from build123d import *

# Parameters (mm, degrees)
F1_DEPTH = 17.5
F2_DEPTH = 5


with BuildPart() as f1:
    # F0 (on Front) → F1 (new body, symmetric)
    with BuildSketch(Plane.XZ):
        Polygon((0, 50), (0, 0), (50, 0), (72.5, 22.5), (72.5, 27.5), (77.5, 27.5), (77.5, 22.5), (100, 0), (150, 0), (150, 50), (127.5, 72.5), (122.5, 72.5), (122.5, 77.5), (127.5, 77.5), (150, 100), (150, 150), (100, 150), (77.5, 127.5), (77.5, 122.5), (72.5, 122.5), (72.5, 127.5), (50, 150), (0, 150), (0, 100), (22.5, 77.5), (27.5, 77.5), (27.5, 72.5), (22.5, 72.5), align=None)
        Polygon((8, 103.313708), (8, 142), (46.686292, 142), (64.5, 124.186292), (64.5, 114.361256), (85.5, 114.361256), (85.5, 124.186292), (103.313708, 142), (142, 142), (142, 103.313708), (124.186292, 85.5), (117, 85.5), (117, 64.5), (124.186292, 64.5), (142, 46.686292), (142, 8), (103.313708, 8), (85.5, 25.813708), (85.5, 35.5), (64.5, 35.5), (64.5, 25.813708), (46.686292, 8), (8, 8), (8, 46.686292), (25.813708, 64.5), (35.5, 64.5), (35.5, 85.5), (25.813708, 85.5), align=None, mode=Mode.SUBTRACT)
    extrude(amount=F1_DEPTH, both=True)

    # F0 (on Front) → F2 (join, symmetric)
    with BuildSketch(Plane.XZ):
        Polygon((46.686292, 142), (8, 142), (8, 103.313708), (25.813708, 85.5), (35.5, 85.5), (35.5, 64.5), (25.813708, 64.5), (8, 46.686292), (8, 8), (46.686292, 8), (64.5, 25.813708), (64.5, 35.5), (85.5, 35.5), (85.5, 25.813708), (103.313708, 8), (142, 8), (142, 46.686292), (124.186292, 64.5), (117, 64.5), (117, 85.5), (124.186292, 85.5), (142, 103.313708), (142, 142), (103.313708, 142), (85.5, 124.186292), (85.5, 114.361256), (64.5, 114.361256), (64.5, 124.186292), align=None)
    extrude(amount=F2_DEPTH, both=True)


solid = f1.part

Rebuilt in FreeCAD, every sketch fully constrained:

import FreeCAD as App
import Part
import Sketcher

V = App.Vector

doc = App.newDocument("Part")
params = doc.addObject("Spreadsheet::Sheet", "Params")
for row, (alias, value) in enumerate([
    ("sketch1_width", "50 mm"),
    ("sketch1_width2", "5 mm"),
    ("sketch1_width3", "21 mm"),
    ("pad1_length", "35 mm"),
    ("sketch2_width", "21 mm"),
    ("pad2_length", "10 mm"),
], start=1):
    params.set(f"A{row}", alias)
    params.set(f"B{row}", "=" + value)
    params.setAlias(f"B{row}", alias)

body = doc.addObject("PartDesign::Body", "Body")

# Sketch on XZ plane
sketch1 = body.newObject("Sketcher::SketchObject", "Sketch")
sketch1.AttachmentSupport = (doc.getObject("XZ_Plane"), [""])
sketch1.MapMode = "FlatFace"
sketch1.addGeometry([
    Part.LineSegment(V(0, 50, 0), V(0, 0, 0)),  # 0
    Part.LineSegment(V(0, 0, 0), V(50, 0, 0)),  # 1
    Part.LineSegment(V(50, 0, 0), V(72, 22, 0)),  # 2
    Part.LineSegment(V(72, 22, 0), V(72, 28, 0)),  # 3
    Part.LineSegment(V(72, 28, 0), V(78, 28, 0)),  # 4
    Part.LineSegment(V(78, 28, 0), V(78, 22, 0)),  # 5
    Part.LineSegment(V(78, 22, 0), V(100, 0, 0)),  # 6
    Part.LineSegment(V(100, 0, 0), V(150, 0, 0)),  # 7
    Part.LineSegment(V(150, 0, 0), V(150, 50, 0)),  # 8
    Part.LineSegment(V(150, 50, 0), V(128, 72, 0)),  # 9
    Part.LineSegment(V(128, 72, 0), V(122, 72, 0)),  # 10
    Part.LineSegment(V(122, 72, 0), V(122, 78, 0)),  # 11
    Part.LineSegment(V(122, 78, 0), V(128, 78, 0)),  # 12
    Part.LineSegment(V(128, 78, 0), V(150, 100, 0)),  # 13
    Part.LineSegment(V(150, 100, 0), V(150, 150, 0)),  # 14
    Part.LineSegment(V(150, 150, 0), V(100, 150, 0)),  # 15
    Part.LineSegment(V(100, 150, 0), V(78, 128, 0)),  # 16
    Part.LineSegment(V(78, 128, 0), V(78, 122, 0)),  # 17
    Part.LineSegment(V(78, 122, 0), V(72, 122, 0)),  # 18
    Part.LineSegment(V(72, 122, 0), V(72, 128, 0)),  # 19
    Part.LineSegment(V(72, 128, 0), V(50, 150, 0)),  # 20
    Part.LineSegment(V(50, 150, 0), V(0, 150, 0)),  # 21
    Part.LineSegment(V(0, 150, 0), V(0, 100, 0)),  # 22
    Part.LineSegment(V(0, 100, 0), V(22, 78, 0)),  # 23
    Part.LineSegment(V(22, 78, 0), V(28, 78, 0)),  # 24
    Part.LineSegment(V(28, 78, 0), V(28, 72, 0)),  # 25
    Part.LineSegment(V(28, 72, 0), V(22, 72, 0)),  # 26
    Part.LineSegment(V(22, 72, 0), V(0, 50, 0)),  # 27
    Part.LineSegment(V(26, 86, 0), V(8, 103, 0)),  # 28
    Part.LineSegment(V(8, 103, 0), V(8, 142, 0)),  # 29
    Part.LineSegment(V(8, 142, 0), V(47, 142, 0)),  # 30
    Part.LineSegment(V(47, 142, 0), V(64, 124, 0)),  # 31
    Part.LineSegment(V(64, 124, 0), V(64, 114, 0)),  # 32
    Part.LineSegment(V(64, 114, 0), V(86, 114, 0)),  # 33
    Part.LineSegment(V(86, 114, 0), V(86, 124, 0)),  # 34
    Part.LineSegment(V(86, 124, 0), V(103, 142, 0)),  # 35
    Part.LineSegment(V(103, 142, 0), V(142, 142, 0)),  # 36
    Part.LineSegment(V(142, 142, 0), V(142, 103, 0)),  # 37
    Part.LineSegment(V(142, 103, 0), V(124, 86, 0)),  # 38
    Part.LineSegment(V(124, 86, 0), V(117, 86, 0)),  # 39
    Part.LineSegment(V(117, 86, 0), V(117, 64, 0)),  # 40
    Part.LineSegment(V(117, 64, 0), V(124, 64, 0)),  # 41
    Part.LineSegment(V(124, 64, 0), V(142, 47, 0)),  # 42
    Part.LineSegment(V(142, 47, 0), V(142, 8, 0)),  # 43
    Part.LineSegment(V(142, 8, 0), V(103, 8, 0)),  # 44
    Part.LineSegment(V(103, 8, 0), V(86, 26, 0)),  # 45
    Part.LineSegment(V(86, 26, 0), V(86, 36, 0)),  # 46
    Part.LineSegment(V(86, 36, 0), V(64, 36, 0)),  # 47
    Part.LineSegment(V(64, 36, 0), V(64, 26, 0)),  # 48
    Part.LineSegment(V(64, 26, 0), V(47, 8, 0)),  # 49
    Part.LineSegment(V(47, 8, 0), V(8, 8, 0)),  # 50
    Part.LineSegment(V(8, 8, 0), V(8, 47, 0)),  # 51
    Part.LineSegment(V(8, 47, 0), V(26, 64, 0)),  # 52
    Part.LineSegment(V(26, 64, 0), V(36, 64, 0)),  # 53
    Part.LineSegment(V(36, 64, 0), V(36, 86, 0)),  # 54
    Part.LineSegment(V(36, 86, 0), V(26, 86, 0)),  # 55
], False)
sketch1.addConstraint([
    Sketcher.Constraint("Coincident", 0, 2, 1, 1),
    Sketcher.Constraint("Coincident", 1, 2, 2, 1),
    Sketcher.Constraint("Coincident", 2, 2, 3, 1),
    Sketcher.Constraint("Coincident", 3, 2, 4, 1),
    Sketcher.Constraint("Coincident", 4, 2, 5, 1),
    Sketcher.Constraint("Coincident", 5, 2, 6, 1),
    Sketcher.Constraint("Coincident", 6, 2, 7, 1),
    Sketcher.Constraint("Coincident", 7, 2, 8, 1),
    Sketcher.Constraint("Coincident", 8, 2, 9, 1),
    Sketcher.Constraint("Coincident", 9, 2, 10, 1),
    Sketcher.Constraint("Coincident", 10, 2, 11, 1),
    Sketcher.Constraint("Coincident", 11, 2, 12, 1),
    Sketcher.Constraint("Coincident", 12, 2, 13, 1),
    Sketcher.Constraint("Coincident", 13, 2, 14, 1),
    Sketcher.Constraint("Coincident", 14, 2, 15, 1),
    Sketcher.Constraint("Coincident", 15, 2, 16, 1),
    Sketcher.Constraint("Coincident", 16, 2, 17, 1),
    Sketcher.Constraint("Coincident", 17, 2, 18, 1),
    Sketcher.Constraint("Coincident", 18, 2, 19, 1),
    Sketcher.Constraint("Coincident", 19, 2, 20, 1),
    Sketcher.Constraint("Coincident", 20, 2, 21, 1),
    Sketcher.Constraint("Coincident", 21, 2, 22, 1),
    Sketcher.Constraint("Coincident", 22, 2, 23, 1),
    Sketcher.Constraint("Coincident", 23, 2, 24, 1),
    Sketcher.Constraint("Coincident", 24, 2, 25, 1),
    Sketcher.Constraint("Coincident", 25, 2, 26, 1),
    Sketcher.Constraint("Coincident", 26, 2, 27, 1),
    Sketcher.Constraint("Coincident", 27, 2, 0, 1),
    Sketcher.Constraint("Coincident", 28, 2, 29, 1),
    Sketcher.Constraint("Coincident", 29, 2, 30, 1),
    Sketcher.Constraint("Coincident", 30, 2, 31, 1),
    Sketcher.Constraint("Coincident", 31, 2, 32, 1),
    Sketcher.Constraint("Coincident", 32, 2, 33, 1),
    Sketcher.Constraint("Coincident", 33, 2, 34, 1),
    Sketcher.Constraint("Coincident", 34, 2, 35, 1),
    Sketcher.Constraint("Coincident", 35, 2, 36, 1),
    Sketcher.Constraint("Coincident", 36, 2, 37, 1),
    Sketcher.Constraint("Coincident", 37, 2, 38, 1),
    Sketcher.Constraint("Coincident", 38, 2, 39, 1),
    Sketcher.Constraint("Coincident", 39, 2, 40, 1),
    Sketcher.Constraint("Coincident", 40, 2, 41, 1),
    Sketcher.Constraint("Coincident", 41, 2, 42, 1),
    Sketcher.Constraint("Coincident", 42, 2, 43, 1),
    Sketcher.Constraint("Coincident", 43, 2, 44, 1),
    Sketcher.Constraint("Coincident", 44, 2, 45, 1),
    Sketcher.Constraint("Coincident", 45, 2, 46, 1),
    Sketcher.Constraint("Coincident", 46, 2, 47, 1),
    Sketcher.Constraint("Coincident", 47, 2, 48, 1),
    Sketcher.Constraint("Coincident", 48, 2, 49, 1),
    Sketcher.Constraint("Coincident", 49, 2, 50, 1),
    Sketcher.Constraint("Coincident", 50, 2, 51, 1),
    Sketcher.Constraint("Coincident", 51, 2, 52, 1),
    Sketcher.Constraint("Coincident", 52, 2, 53, 1),
    Sketcher.Constraint("Coincident", 53, 2, 54, 1),
    Sketcher.Constraint("Coincident", 54, 2, 55, 1),
    Sketcher.Constraint("Coincident", 55, 2, 28, 1),
    Sketcher.Constraint("Vertical", 0),
    Sketcher.Constraint("Horizontal", 1),
    Sketcher.Constraint("Vertical", 3),
    Sketcher.Constraint("Horizontal", 4),
    Sketcher.Constraint("Vertical", 5),
    Sketcher.Constraint("Horizontal", 7),
    Sketcher.Constraint("Vertical", 8),
    Sketcher.Constraint("Horizontal", 10),
    Sketcher.Constraint("Vertical", 11),
    Sketcher.Constraint("Horizontal", 12),
    Sketcher.Constraint("Vertical", 14),
    Sketcher.Constraint("Horizontal", 15),
    Sketcher.Constraint("Vertical", 17),
    Sketcher.Constraint("Horizontal", 18),
    Sketcher.Constraint("Vertical", 19),
    Sketcher.Constraint("Horizontal", 21),
    Sketcher.Constraint("Vertical", 22),
    Sketcher.Constraint("Horizontal", 24),
    Sketcher.Constraint("Vertical", 25),
    Sketcher.Constraint("Horizontal", 26),
    Sketcher.Constraint("Vertical", 29),
    Sketcher.Constraint("Horizontal", 30),
    Sketcher.Constraint("Vertical", 32),
    Sketcher.Constraint("Horizontal", 33),
    Sketcher.Constraint("Vertical", 34),
    Sketcher.Constraint("Horizontal", 36),
    Sketcher.Constraint("Vertical", 37),
    Sketcher.Constraint("Horizontal", 39),
    Sketcher.Constraint("Vertical", 40),
    Sketcher.Constraint("Horizontal", 41),
    Sketcher.Constraint("Vertical", 43),
    Sketcher.Constraint("Horizontal", 44),
    Sketcher.Constraint("Vertical", 46),
    Sketcher.Constraint("Horizontal", 47),
    Sketcher.Constraint("Vertical", 48),
    Sketcher.Constraint("Horizontal", 50),
    Sketcher.Constraint("Vertical", 51),
    Sketcher.Constraint("Horizontal", 53),
    Sketcher.Constraint("Vertical", 54),
    Sketcher.Constraint("Horizontal", 55),
    Sketcher.Constraint("Coincident", 0, 2, -1, 1),
    Sketcher.Constraint("PointOnObject", 6, 2, -1),
    Sketcher.Constraint("PointOnObject", 21, 2, -2),
    Sketcher.Constraint("Perpendicular", 2, 6),
    Sketcher.Constraint("Parallel", 6, 9),
    Sketcher.Constraint("Perpendicular", 9, 13),
    Sketcher.Constraint("Parallel", 13, 16),
    Sketcher.Constraint("Perpendicular", 16, 20),
    Sketcher.Constraint("Parallel", 20, 23),
    Sketcher.Constraint("Perpendicular", 23, 27),
    Sketcher.Constraint("Perpendicular", 27, 28),
    Sketcher.Constraint("Parallel", 28, 31),
    Sketcher.Constraint("Perpendicular", 31, 35),
    Sketcher.Constraint("Parallel", 35, 38),
    Sketcher.Constraint("Perpendicular", 38, 42),
    Sketcher.Constraint("Parallel", 42, 45),
    Sketcher.Constraint("Perpendicular", 45, 49),
    Sketcher.Constraint("Parallel", 49, 52),
    Sketcher.Constraint("Horizontal", 2, 2, 5, 2),
    Sketcher.Constraint("Horizontal", 16, 2, 19, 2),
    Sketcher.Constraint("Horizontal", 15, 2, 20, 2),
    Sketcher.Constraint("Horizontal", 13, 2, 22, 2),
    Sketcher.Constraint("Horizontal", 12, 2, 23, 2),
    Sketcher.Constraint("Horizontal", 10, 2, 25, 2),
    Sketcher.Constraint("Horizontal", 8, 2, 27, 2),
    Sketcher.Constraint("Horizontal", 31, 2, 34, 2),
    Sketcher.Constraint("Horizontal", 30, 2, 35, 2),
    Sketcher.Constraint("Horizontal", 28, 2, 37, 2),
    Sketcher.Constraint("Horizontal", 45, 2, 48, 2),
    Sketcher.Constraint("Horizontal", 44, 2, 49, 2),
    Sketcher.Constraint("Horizontal", 42, 2, 51, 2),
    Sketcher.Constraint("Horizontal", 41, 2, 52, 2),
    Sketcher.Constraint("Horizontal", 39, 2, 54, 2),
    Sketcher.Constraint("Vertical", 9, 2, 12, 2),
    Sketcher.Constraint("Vertical", 8, 2, 13, 2),
    Sketcher.Constraint("Vertical", 6, 2, 15, 2),
    Sketcher.Constraint("Vertical", 5, 2, 16, 2),
    Sketcher.Constraint("Vertical", 3, 2, 18, 2),
    Sketcher.Constraint("Vertical", 1, 2, 20, 2),
    Sketcher.Constraint("Vertical", 38, 2, 41, 2),
    Sketcher.Constraint("Vertical", 37, 2, 42, 2),
    Sketcher.Constraint("Vertical", 35, 2, 44, 2),
    Sketcher.Constraint("Vertical", 34, 2, 45, 2),
    Sketcher.Constraint("Vertical", 32, 2, 47, 2),
    Sketcher.Constraint("Vertical", 29, 2, 50, 2),
    Sketcher.Constraint("Equal", 1, 7),
    Sketcher.Constraint("Equal", 4, 10),
    Sketcher.Constraint("Equal", 18, 24),
    Sketcher.Constraint("Equal", 30, 36),
    Sketcher.Constraint("Equal", 21, 0),
    Sketcher.Constraint("Equal", 26, 3),
    Sketcher.Constraint("Equal", 5, 11),
    Sketcher.Constraint("Equal", 8, 14),
    Sketcher.Constraint("Equal", 11, 17),
    Sketcher.Constraint("Equal", 50, 29),
    Sketcher.Constraint("Equal", 47, 40),
    Sketcher.Constraint("Equal", 37, 43),
    Sketcher.Constraint("Equal", 55, 46),
    Sketcher.Constraint("Equal", 6, 9),
    Sketcher.Constraint("Equal", 28, 31),
    Sketcher.Constraint("DistanceX", 1, 1, 1, 2, 50.0),
    Sketcher.Constraint("DistanceX", 4, 1, 4, 2, 5.0),
    Sketcher.Constraint("DistanceX", 33, 1, 33, 2, 21.0),
    Sketcher.Constraint("DistanceX", -1, 1, 6, 2, 100.0),
    Sketcher.Constraint("DistanceX", -1, 1, 28, 2, 8.0),
    Sketcher.Constraint("DistanceY", -1, 1, 29, 2, 142.0),
    Sketcher.Constraint("DistanceX", -1, 1, 36, 2, 142.0),
    Sketcher.Constraint("DistanceX", -1, 1, 39, 2, 117.0),
    Sketcher.Constraint("DistanceY", 4, 2, 46, 2, 8.0),
    Sketcher.Constraint("DistanceX", 36, 1, 36, 2, 38.686292),
    Sketcher.Constraint("DistanceY", 32, 2, 32, 1, 9.825036),
])
sketch1.setExpression("Constraints[156]", "Params.sketch1_width")
sketch1.setExpression("Constraints[157]", "Params.sketch1_width2")
sketch1.setExpression("Constraints[158]", "Params.sketch1_width3")
pad1 = body.newObject("PartDesign::Pad", "Pad")
pad1.Profile = sketch1
pad1.setExpression("Length", "Params.pad1_length")
pad1.Midplane = True

# Sketch on XZ plane
sketch2 = body.newObject("Sketcher::SketchObject", "Sketch001")
sketch2.AttachmentSupport = (doc.getObject("XZ_Plane"), [""])
sketch2.MapMode = "FlatFace"
sketch2.addGeometry([
    Part.LineSegment(V(47, 142, 0), V(8, 142, 0)),  # 0
    Part.LineSegment(V(8, 142, 0), V(8, 103, 0)),  # 1
    Part.LineSegment(V(8, 103, 0), V(26, 86, 0)),  # 2
    Part.LineSegment(V(26, 86, 0), V(36, 86, 0)),  # 3
    Part.LineSegment(V(36, 86, 0), V(36, 64, 0)),  # 4
    Part.LineSegment(V(36, 64, 0), V(26, 64, 0)),  # 5
    Part.LineSegment(V(26, 64, 0), V(8, 47, 0)),  # 6
    Part.LineSegment(V(8, 47, 0), V(8, 8, 0)),  # 7
    Part.LineSegment(V(8, 8, 0), V(47, 8, 0)),  # 8
    Part.LineSegment(V(47, 8, 0), V(64, 26, 0)),  # 9
    Part.LineSegment(V(64, 26, 0), V(64, 36, 0)),  # 10
    Part.LineSegment(V(64, 36, 0), V(86, 36, 0)),  # 11
    Part.LineSegment(V(86, 36, 0), V(86, 26, 0)),  # 12
    Part.LineSegment(V(86, 26, 0), V(103, 8, 0)),  # 13
    Part.LineSegment(V(103, 8, 0), V(142, 8, 0)),  # 14
    Part.LineSegment(V(142, 8, 0), V(142, 47, 0)),  # 15
    Part.LineSegment(V(142, 47, 0), V(124, 64, 0)),  # 16
    Part.LineSegment(V(124, 64, 0), V(117, 64, 0)),  # 17
    Part.LineSegment(V(117, 64, 0), V(117, 86, 0)),  # 18
    Part.LineSegment(V(117, 86, 0), V(124, 86, 0)),  # 19
    Part.LineSegment(V(124, 86, 0), V(142, 103, 0)),  # 20
    Part.LineSegment(V(142, 103, 0), V(142, 142, 0)),  # 21
    Part.LineSegment(V(142, 142, 0), V(103, 142, 0)),  # 22
    Part.LineSegment(V(103, 142, 0), V(86, 124, 0)),  # 23
    Part.LineSegment(V(86, 124, 0), V(86, 114, 0)),  # 24
    Part.LineSegment(V(86, 114, 0), V(64, 114, 0)),  # 25
    Part.LineSegment(V(64, 114, 0), V(64, 124, 0)),  # 26
    Part.LineSegment(V(64, 124, 0), V(47, 142, 0)),  # 27
], False)
sketch2.addConstraint([
    Sketcher.Constraint("Coincident", 0, 2, 1, 1),
    Sketcher.Constraint("Coincident", 1, 2, 2, 1),
    Sketcher.Constraint("Coincident", 2, 2, 3, 1),
    Sketcher.Constraint("Coincident", 3, 2, 4, 1),
    Sketcher.Constraint("Coincident", 4, 2, 5, 1),
    Sketcher.Constraint("Coincident", 5, 2, 6, 1),
    Sketcher.Constraint("Coincident", 6, 2, 7, 1),
    Sketcher.Constraint("Coincident", 7, 2, 8, 1),
    Sketcher.Constraint("Coincident", 8, 2, 9, 1),
    Sketcher.Constraint("Coincident", 9, 2, 10, 1),
    Sketcher.Constraint("Coincident", 10, 2, 11, 1),
    Sketcher.Constraint("Coincident", 11, 2, 12, 1),
    Sketcher.Constraint("Coincident", 12, 2, 13, 1),
    Sketcher.Constraint("Coincident", 13, 2, 14, 1),
    Sketcher.Constraint("Coincident", 14, 2, 15, 1),
    Sketcher.Constraint("Coincident", 15, 2, 16, 1),
    Sketcher.Constraint("Coincident", 16, 2, 17, 1),
    Sketcher.Constraint("Coincident", 17, 2, 18, 1),
    Sketcher.Constraint("Coincident", 18, 2, 19, 1),
    Sketcher.Constraint("Coincident", 19, 2, 20, 1),
    Sketcher.Constraint("Coincident", 20, 2, 21, 1),
    Sketcher.Constraint("Coincident", 21, 2, 22, 1),
    Sketcher.Constraint("Coincident", 22, 2, 23, 1),
    Sketcher.Constraint("Coincident", 23, 2, 24, 1),
    Sketcher.Constraint("Coincident", 24, 2, 25, 1),
    Sketcher.Constraint("Coincident", 25, 2, 26, 1),
    Sketcher.Constraint("Coincident", 26, 2, 27, 1),
    Sketcher.Constraint("Coincident", 27, 2, 0, 1),
    Sketcher.Constraint("Horizontal", 0),
    Sketcher.Constraint("Vertical", 1),
    Sketcher.Constraint("Horizontal", 3),
    Sketcher.Constraint("Vertical", 4),
    Sketcher.Constraint("Horizontal", 5),
    Sketcher.Constraint("Vertical", 7),
    Sketcher.Constraint("Horizontal", 8),
    Sketcher.Constraint("Vertical", 10),
    Sketcher.Constraint("Horizontal", 11),
    Sketcher.Constraint("Vertical", 12),
    Sketcher.Constraint("Horizontal", 14),
    Sketcher.Constraint("Vertical", 15),
    Sketcher.Constraint("Horizontal", 17),
    Sketcher.Constraint("Vertical", 18),
    Sketcher.Constraint("Horizontal", 19),
    Sketcher.Constraint("Vertical", 21),
    Sketcher.Constraint("Horizontal", 22),
    Sketcher.Constraint("Vertical", 24),
    Sketcher.Constraint("Horizontal", 25),
    Sketcher.Constraint("Vertical", 26),
    Sketcher.Constraint("Perpendicular", 2, 6),
    Sketcher.Constraint("Parallel", 6, 9),
    Sketcher.Constraint("Perpendicular", 9, 13),
    Sketcher.Constraint("Parallel", 13, 16),
    Sketcher.Constraint("Perpendicular", 16, 20),
    Sketcher.Constraint("Parallel", 20, 23),
    Sketcher.Constraint("Perpendicular", 23, 27),
    Sketcher.Constraint("Horizontal", 9, 2, 12, 2),
    Sketcher.Constraint("Horizontal", 8, 2, 13, 2),
    Sketcher.Constraint("Horizontal", 6, 2, 15, 2),
    Sketcher.Constraint("Horizontal", 5, 2, 16, 2),
    Sketcher.Constraint("Horizontal", 3, 2, 18, 2),
    Sketcher.Constraint("Horizontal", 1, 2, 20, 2),
    Sketcher.Constraint("Horizontal", 0, 2, 21, 2),
    Sketcher.Constraint("Horizontal", 23, 2, 26, 2),
    Sketcher.Constraint("Vertical", 2, 2, 5, 2),
    Sketcher.Constraint("Vertical", 1, 2, 6, 2),
    Sketcher.Constraint("Vertical", 16, 2, 19, 2),
    Sketcher.Constraint("Vertical", 15, 2, 20, 2),
    Sketcher.Constraint("Vertical", 13, 2, 22, 2),
    Sketcher.Constraint("Vertical", 12, 2, 23, 2),
    Sketcher.Constraint("Vertical", 10, 2, 25, 2),
    Sketcher.Constraint("Equal", 8, 14),
    Sketcher.Constraint("Equal", 22, 1),
    Sketcher.Constraint("Equal", 25, 4),
    Sketcher.Constraint("Equal", 1, 7),
    Sketcher.Constraint("Equal", 5, 10),
    Sketcher.Constraint("Equal", 6, 9),
    Sketcher.Constraint("DistanceX", 11, 1, 11, 2, 21.0),
    Sketcher.Constraint("DistanceX", -1, 1, 0, 2, 8.0),
    Sketcher.Constraint("DistanceY", -1, 1, 0, 2, 142.0),
    Sketcher.Constraint("DistanceY", -1, 1, 7, 2, 8.0),
    Sketcher.Constraint("DistanceX", -1, 1, 17, 2, 117.0),
    Sketcher.Constraint("DistanceX", 4, 2, 9, 2, 29.0),
    Sketcher.Constraint("DistanceX", 14, 1, 14, 2, 38.686292),
    Sketcher.Constraint("DistanceY", 24, 2, 24, 1, 9.825036),
])
sketch2.setExpression("Constraints[76]", "Params.sketch2_width")
pad2 = body.newObject("PartDesign::Pad", "Pad001")
pad2.Profile = sketch2
pad2.setExpression("Length", "Params.pad2_length")
pad2.Midplane = True

doc.recompute()
